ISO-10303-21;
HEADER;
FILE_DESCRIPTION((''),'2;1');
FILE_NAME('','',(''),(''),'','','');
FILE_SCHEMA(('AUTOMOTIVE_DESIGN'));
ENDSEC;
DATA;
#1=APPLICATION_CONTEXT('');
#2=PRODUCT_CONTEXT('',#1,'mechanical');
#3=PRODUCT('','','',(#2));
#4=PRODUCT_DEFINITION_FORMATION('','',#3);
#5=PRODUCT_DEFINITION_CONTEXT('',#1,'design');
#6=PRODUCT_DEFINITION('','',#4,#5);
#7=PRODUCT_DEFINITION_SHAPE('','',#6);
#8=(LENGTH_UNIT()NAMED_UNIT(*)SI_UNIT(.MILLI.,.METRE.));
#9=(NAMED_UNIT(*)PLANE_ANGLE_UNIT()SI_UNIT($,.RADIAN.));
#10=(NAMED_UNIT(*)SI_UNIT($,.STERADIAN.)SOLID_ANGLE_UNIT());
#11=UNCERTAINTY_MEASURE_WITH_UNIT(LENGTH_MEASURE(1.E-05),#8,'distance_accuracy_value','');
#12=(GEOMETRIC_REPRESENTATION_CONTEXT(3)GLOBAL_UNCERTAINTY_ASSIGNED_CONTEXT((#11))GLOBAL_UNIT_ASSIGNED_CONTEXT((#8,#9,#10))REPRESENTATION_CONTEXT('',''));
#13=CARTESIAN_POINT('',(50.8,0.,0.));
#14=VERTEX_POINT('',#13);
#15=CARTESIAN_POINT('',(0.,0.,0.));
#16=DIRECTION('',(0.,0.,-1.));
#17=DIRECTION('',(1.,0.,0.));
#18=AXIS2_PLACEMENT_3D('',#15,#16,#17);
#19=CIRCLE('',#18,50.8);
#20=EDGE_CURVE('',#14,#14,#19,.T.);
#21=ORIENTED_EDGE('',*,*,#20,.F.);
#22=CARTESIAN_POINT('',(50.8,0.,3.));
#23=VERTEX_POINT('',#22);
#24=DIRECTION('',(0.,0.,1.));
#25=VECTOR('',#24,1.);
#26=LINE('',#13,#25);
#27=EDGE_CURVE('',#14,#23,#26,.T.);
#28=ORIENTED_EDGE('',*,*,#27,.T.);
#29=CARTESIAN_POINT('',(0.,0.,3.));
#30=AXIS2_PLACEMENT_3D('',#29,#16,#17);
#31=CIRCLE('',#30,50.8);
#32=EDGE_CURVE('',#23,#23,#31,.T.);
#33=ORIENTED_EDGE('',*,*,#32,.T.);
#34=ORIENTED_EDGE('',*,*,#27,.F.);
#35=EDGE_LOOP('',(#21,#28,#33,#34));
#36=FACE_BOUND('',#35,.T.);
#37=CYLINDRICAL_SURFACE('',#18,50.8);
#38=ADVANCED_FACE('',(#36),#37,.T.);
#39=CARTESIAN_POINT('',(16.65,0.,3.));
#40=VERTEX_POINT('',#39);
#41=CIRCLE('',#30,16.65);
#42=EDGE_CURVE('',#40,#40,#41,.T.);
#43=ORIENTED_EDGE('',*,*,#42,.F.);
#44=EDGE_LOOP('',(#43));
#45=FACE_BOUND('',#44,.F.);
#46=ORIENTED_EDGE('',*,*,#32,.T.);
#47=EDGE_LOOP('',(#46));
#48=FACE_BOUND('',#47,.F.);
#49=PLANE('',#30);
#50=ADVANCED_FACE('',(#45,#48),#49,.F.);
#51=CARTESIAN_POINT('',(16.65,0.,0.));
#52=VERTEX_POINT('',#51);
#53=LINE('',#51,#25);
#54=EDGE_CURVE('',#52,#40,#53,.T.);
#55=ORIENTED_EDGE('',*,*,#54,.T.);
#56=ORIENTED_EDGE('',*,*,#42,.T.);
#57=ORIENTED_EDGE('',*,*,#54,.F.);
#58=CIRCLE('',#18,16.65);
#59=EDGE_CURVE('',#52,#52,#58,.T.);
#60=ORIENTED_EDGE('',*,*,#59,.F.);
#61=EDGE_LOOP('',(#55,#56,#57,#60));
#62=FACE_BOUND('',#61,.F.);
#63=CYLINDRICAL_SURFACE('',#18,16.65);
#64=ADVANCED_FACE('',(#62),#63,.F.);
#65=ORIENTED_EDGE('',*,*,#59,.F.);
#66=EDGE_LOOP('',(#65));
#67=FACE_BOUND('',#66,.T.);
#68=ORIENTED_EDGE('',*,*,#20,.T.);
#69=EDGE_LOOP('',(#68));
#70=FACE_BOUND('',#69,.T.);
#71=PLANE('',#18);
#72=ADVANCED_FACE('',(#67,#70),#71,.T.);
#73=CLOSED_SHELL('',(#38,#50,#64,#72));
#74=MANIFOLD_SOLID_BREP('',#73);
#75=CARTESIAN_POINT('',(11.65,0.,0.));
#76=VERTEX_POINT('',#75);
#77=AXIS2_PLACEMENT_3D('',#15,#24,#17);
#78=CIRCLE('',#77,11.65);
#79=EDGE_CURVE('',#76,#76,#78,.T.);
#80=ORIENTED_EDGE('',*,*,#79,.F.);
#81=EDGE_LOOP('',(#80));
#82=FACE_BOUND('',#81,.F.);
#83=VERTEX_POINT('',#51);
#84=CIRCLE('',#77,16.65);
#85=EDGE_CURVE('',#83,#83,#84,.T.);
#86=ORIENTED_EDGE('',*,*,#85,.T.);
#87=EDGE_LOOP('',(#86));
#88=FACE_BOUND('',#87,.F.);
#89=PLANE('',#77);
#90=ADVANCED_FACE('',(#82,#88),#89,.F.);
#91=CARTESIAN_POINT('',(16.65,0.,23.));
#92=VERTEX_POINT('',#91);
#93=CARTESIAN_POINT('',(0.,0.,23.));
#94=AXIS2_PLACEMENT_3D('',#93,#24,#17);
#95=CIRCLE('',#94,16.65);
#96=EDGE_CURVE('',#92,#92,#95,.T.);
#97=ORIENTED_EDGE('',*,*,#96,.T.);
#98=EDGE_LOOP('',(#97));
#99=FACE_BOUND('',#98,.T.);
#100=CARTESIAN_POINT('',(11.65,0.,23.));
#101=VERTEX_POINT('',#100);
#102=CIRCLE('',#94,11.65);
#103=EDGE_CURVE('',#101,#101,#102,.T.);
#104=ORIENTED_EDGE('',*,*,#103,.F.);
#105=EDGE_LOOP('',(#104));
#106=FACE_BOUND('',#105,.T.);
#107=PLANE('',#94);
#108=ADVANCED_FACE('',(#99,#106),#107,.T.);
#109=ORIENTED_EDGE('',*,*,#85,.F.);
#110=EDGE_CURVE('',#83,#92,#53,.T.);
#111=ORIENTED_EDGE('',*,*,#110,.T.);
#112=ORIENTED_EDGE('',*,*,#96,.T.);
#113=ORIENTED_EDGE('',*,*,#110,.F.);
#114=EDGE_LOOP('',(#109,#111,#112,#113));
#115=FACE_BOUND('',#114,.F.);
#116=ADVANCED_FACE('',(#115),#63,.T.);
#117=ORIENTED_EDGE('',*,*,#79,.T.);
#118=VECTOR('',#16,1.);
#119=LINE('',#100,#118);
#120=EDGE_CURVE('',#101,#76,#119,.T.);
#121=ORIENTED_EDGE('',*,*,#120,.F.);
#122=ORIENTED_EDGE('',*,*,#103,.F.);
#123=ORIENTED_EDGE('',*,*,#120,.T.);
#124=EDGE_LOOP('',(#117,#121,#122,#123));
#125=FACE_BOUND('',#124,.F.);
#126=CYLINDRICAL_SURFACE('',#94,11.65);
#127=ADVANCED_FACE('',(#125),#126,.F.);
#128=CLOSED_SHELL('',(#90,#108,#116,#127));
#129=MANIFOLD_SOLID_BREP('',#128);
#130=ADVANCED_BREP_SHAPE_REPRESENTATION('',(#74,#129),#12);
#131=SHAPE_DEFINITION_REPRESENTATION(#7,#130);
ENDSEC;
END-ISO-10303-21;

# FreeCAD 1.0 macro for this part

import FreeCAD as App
import Part
import Sketcher
from FreeCAD import Vector

doc = App.newDocument("Part")
params = doc.addObject("Spreadsheet::Sheet", "Params")
for row, (alias, value) in enumerate([
    ("sketch1_diameter", "33.3 mm"),
    ("pad1_length", "23 mm"),
    ("sketch2_diameter", "23.3 mm"),
    ("pocket1_length", "40 mm"),
    ("sketch3_diameter", "101.6 mm"),
    ("sketch3_diameter2", "33.3 mm"),
    ("pad2_length", "3 mm"),
], start=1):
    params.set(f"A{row}", alias)
    params.set(f"B{row}", "=" + value)
    params.setAlias(f"B{row}", alias)

body = doc.addObject("PartDesign::Body", "Body")

# Sketch on XY plane
sketch1 = body.newObject("Sketcher::SketchObject", "Sketch")
sketch1.AttachmentSupport = (doc.getObject("XY_Plane"), [""])
sketch1.MapMode = "FlatFace"
sketch1.addGeometry(Part.Circle(Vector(0, 0, 0), Vector(0, 0, 1), 16.65), False)
sketch1.addConstraint(Sketcher.Constraint("Coincident", 0, 3, -1, 1))
sketch1.addConstraint(Sketcher.Constraint("Diameter", 0, 33.3))
sketch1.setExpression("Constraints[1]", "Params.sketch1_diameter")
pad1 = body.newObject("PartDesign::Pad", "Pad")
pad1.Profile = sketch1
pad1.setExpression("Length", "Params.pad1_length")

# Sketch on XY plane
sketch2 = body.newObject("Sketcher::SketchObject", "Sketch001")
sketch2.AttachmentSupport = (doc.getObject("XY_Plane"), [""])
sketch2.MapMode = "FlatFace"
sketch2.AttachmentOffset = App.Placement(Vector(0, 0, 23), App.Rotation())
sketch2.addGeometry(Part.Circle(Vector(0, 0, 0), Vector(0, 0, 1), 11.65), False)
sketch2.addConstraint(Sketcher.Constraint("Coincident", 0, 3, -1, 1))
sketch2.addConstraint(Sketcher.Constraint("Diameter", 0, 23.3))
sketch2.setExpression("Constraints[1]", "Params.sketch2_diameter")
pocket1 = body.newObject("PartDesign::Pocket", "Pocket")
pocket1.Profile = sketch2
pocket1.setExpression("Length", "Params.pocket1_length")
body2 = doc.addObject("PartDesign::Body", "Body001")

# Sketch on XY plane
sketch3 = body2.newObject("Sketcher::SketchObject", "Sketch002")
sketch3.AttachmentSupport = (doc.getObject("XY_Plane001"), [""])
sketch3.MapMode = "FlatFace"
sketch3.addGeometry(Part.Circle(Vector(0, 0, 0), Vector(0, 0, 1), 50.8), False)
sketch3.addGeometry(Part.Circle(Vector(0, 0, 0), Vector(0, 0, 1), 16.65), False)
sketch3.addConstraint(Sketcher.Constraint("Coincident", 0, 3, -1, 1))
sketch3.addConstraint(Sketcher.Constraint("Coincident", 1, 3, -1, 1))
sketch3.addConstraint(Sketcher.Constraint("Diameter", 0, 101.6))
sketch3.addConstraint(Sketcher.Constraint("Diameter", 1, 33.3))
sketch3.setExpression("Constraints[2]", "Params.sketch3_diameter")
sketch3.setExpression("Constraints[3]", "Params.sketch3_diameter2")
pad2 = body2.newObject("PartDesign::Pad", "Pad001")
pad2.Profile = sketch3
pad2.setExpression("Length", "Params.pad2_length")

doc.recompute()
